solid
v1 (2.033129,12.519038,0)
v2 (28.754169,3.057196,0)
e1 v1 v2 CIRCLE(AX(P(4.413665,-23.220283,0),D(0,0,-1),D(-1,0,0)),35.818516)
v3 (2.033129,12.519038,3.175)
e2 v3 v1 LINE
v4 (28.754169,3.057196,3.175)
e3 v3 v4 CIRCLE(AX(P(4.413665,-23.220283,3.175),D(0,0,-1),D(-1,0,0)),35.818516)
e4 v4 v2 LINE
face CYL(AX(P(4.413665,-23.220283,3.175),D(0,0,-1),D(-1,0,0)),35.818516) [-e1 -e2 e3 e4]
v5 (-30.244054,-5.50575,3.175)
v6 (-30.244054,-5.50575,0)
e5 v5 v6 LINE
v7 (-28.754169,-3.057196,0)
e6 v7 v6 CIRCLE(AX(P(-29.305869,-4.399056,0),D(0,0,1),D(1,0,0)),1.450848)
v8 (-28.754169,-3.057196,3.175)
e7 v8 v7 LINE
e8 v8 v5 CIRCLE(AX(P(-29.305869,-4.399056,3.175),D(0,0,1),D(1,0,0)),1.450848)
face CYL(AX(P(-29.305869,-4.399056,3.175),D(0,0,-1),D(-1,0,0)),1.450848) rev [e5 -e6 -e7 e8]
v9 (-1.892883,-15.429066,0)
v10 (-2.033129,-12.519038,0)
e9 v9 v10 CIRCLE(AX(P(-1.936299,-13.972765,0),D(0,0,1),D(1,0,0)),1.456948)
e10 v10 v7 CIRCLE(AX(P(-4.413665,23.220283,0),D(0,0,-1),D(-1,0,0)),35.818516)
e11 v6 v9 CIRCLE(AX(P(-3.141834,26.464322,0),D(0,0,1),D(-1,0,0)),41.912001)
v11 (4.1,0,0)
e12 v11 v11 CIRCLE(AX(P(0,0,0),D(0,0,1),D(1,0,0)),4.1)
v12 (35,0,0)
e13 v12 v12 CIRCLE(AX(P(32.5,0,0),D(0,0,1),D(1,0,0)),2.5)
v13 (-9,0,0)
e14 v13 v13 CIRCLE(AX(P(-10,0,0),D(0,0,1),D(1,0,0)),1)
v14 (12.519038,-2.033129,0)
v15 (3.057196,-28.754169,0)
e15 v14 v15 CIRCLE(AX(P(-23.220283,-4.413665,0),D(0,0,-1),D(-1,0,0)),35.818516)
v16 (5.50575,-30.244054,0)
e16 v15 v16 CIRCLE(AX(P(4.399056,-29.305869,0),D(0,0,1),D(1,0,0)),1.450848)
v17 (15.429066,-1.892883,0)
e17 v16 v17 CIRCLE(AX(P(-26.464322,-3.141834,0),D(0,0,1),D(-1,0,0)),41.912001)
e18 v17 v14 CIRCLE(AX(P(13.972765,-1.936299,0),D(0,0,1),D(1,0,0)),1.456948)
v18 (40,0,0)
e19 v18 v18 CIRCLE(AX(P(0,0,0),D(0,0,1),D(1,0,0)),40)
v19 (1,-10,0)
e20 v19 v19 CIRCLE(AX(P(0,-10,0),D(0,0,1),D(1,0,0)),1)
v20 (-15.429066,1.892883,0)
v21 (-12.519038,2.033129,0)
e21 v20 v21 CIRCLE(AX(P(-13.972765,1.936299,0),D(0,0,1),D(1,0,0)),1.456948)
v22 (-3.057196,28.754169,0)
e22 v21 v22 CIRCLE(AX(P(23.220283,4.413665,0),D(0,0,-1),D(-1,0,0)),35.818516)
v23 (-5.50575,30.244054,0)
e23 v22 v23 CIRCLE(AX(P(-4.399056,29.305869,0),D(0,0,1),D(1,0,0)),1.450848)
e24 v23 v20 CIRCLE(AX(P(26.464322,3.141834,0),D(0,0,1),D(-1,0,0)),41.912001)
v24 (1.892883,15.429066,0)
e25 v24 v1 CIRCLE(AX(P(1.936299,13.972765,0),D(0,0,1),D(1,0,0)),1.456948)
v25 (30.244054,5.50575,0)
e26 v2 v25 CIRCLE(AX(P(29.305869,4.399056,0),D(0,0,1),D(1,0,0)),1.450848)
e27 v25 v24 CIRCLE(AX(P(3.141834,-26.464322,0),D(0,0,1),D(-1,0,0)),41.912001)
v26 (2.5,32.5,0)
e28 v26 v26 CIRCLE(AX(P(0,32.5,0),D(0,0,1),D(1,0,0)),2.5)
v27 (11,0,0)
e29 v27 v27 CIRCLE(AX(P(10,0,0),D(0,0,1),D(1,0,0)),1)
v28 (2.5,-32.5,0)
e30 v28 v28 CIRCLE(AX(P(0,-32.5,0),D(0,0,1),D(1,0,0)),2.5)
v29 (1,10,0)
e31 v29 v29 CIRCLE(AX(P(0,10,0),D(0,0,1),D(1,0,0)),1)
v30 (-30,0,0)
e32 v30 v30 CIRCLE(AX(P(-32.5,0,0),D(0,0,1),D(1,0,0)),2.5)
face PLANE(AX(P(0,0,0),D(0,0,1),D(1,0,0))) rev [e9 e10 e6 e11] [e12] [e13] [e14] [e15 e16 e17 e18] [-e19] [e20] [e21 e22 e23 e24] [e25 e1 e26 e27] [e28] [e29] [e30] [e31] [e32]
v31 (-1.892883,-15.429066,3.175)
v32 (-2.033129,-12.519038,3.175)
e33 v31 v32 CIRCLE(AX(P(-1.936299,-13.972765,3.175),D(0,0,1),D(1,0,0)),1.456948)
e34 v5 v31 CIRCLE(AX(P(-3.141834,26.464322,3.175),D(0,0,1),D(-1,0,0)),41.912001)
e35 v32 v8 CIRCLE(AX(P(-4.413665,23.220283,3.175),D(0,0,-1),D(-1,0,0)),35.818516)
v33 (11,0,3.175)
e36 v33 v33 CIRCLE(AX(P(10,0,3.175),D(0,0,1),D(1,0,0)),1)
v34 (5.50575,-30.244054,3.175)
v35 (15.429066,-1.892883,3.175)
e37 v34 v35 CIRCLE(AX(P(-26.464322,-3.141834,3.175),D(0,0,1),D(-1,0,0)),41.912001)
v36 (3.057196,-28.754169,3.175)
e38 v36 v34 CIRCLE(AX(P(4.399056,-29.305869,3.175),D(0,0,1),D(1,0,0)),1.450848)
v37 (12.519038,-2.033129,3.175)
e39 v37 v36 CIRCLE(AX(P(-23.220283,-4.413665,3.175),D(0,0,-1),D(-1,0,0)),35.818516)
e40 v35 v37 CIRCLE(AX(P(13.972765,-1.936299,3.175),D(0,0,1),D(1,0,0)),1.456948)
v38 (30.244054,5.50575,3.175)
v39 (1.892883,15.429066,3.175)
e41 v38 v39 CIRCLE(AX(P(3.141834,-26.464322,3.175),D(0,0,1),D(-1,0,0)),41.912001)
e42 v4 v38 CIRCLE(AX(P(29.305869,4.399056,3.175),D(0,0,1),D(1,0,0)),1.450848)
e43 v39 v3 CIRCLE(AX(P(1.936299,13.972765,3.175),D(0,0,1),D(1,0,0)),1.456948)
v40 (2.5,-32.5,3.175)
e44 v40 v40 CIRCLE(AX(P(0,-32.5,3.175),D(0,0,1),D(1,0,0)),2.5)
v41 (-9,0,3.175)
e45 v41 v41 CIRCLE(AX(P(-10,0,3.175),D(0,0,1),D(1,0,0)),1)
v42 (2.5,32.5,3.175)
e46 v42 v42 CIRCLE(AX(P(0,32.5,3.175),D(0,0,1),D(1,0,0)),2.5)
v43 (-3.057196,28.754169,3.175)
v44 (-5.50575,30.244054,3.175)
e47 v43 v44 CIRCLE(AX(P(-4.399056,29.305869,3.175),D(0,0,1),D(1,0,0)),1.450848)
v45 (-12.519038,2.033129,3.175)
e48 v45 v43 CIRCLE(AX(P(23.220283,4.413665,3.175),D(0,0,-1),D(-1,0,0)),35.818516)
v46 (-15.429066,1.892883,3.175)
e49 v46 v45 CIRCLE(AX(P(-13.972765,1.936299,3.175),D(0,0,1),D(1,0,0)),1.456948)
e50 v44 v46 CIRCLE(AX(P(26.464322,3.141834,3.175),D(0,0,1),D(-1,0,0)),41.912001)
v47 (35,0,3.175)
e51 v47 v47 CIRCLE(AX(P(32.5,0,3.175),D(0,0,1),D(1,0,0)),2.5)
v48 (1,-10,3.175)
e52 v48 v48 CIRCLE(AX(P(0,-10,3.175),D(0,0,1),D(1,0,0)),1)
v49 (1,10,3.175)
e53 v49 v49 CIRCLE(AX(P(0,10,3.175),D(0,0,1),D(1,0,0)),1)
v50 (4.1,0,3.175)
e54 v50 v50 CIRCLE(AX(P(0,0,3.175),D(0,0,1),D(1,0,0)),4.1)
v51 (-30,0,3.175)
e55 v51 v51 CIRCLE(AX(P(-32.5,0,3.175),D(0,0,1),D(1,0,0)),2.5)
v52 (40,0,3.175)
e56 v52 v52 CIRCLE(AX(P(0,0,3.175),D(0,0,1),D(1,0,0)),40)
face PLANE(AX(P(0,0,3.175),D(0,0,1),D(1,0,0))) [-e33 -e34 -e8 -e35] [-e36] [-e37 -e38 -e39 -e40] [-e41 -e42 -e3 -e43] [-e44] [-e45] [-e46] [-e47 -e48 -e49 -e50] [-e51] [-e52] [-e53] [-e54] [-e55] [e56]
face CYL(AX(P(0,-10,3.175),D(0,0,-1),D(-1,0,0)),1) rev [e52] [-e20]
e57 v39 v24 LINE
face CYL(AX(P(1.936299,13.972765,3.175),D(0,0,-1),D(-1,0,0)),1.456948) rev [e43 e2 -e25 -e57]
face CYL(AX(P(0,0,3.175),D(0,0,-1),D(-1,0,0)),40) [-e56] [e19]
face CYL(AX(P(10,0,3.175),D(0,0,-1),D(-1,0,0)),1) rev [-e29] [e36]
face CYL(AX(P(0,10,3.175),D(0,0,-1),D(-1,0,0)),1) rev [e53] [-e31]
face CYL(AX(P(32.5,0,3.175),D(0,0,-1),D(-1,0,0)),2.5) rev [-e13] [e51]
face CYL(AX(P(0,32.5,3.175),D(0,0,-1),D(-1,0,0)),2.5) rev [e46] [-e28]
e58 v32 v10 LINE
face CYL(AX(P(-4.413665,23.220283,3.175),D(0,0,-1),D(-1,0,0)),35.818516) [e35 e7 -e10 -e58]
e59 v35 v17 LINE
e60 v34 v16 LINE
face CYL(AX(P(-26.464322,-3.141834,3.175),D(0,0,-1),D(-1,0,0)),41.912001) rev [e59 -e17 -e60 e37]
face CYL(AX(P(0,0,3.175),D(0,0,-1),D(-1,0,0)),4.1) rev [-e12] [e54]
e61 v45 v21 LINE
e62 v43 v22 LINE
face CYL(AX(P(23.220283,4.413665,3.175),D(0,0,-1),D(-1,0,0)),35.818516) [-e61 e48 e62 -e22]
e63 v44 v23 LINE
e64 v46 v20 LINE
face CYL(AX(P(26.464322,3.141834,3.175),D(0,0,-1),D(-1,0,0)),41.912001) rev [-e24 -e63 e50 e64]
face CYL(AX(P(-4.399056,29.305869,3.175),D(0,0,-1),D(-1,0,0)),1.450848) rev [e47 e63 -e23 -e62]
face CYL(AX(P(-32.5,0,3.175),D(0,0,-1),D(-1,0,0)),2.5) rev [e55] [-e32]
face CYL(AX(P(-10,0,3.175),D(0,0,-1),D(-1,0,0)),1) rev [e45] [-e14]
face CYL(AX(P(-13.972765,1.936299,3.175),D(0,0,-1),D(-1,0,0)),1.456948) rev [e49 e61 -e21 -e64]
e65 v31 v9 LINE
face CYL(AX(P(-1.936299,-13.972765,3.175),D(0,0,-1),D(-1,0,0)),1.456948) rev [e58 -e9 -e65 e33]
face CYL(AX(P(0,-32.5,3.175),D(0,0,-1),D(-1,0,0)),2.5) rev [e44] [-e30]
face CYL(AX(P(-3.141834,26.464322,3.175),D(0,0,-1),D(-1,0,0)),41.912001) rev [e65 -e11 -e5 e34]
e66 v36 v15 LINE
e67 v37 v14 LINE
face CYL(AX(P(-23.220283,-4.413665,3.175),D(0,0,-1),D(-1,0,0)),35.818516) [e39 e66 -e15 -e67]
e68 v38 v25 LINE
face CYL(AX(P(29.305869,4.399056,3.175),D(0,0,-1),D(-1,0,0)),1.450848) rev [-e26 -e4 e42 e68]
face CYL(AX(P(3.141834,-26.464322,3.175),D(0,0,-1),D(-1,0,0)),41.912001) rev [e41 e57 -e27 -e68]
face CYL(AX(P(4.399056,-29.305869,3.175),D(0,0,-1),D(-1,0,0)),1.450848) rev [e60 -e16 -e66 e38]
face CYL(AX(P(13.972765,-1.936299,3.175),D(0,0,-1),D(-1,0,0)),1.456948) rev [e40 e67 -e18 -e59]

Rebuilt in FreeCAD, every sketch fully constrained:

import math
import FreeCAD as App
import Part
import Sketcher
from FreeCAD import Vector

doc = App.newDocument("Part")
body = doc.addObject("PartDesign::Body", "Body")

# Sketch on XY plane
sketch1 = body.newObject("Sketcher::SketchObject", "Sketch")
sketch1.AttachmentSupport = (doc.getObject("XY_Plane"), [""])
sketch1.MapMode = "FlatFace"
sketch1.addGeometry([
    Part.Circle(Vector(0, 0, 0), Vector(0, 0, 1), 40),  # 0
    Part.ArcOfCircle(Part.Circle(Vector(-1.9, -14, 0), Vector(0, 0, 1), 1.5), math.radians(-88), math.radians(94)),  # 1
    Part.ArcOfCircle(Part.Circle(Vector(-3.1, 26.5, 0), Vector(0, 0, 1), 41.9), math.radians(-130), math.radians(-88)),  # 2
    Part.ArcOfCircle(Part.Circle(Vector(-29.3, -4.4, 0), Vector(0, 0, 1), 1.5), math.radians(68), math.radians(230)),  # 3
    Part.ArcOfCircle(Part.Circle(Vector(-4.4, 23.2, 0), Vector(0, 0, 1), 35.8), math.radians(-133), math.radians(-86)),  # 4
    Part.Circle(Vector(0, -32.5, 0), Vector(0, 0, 1), 2.5),  # 5
    Part.Circle(Vector(0, -10, 0), Vector(0, 0, 1), 1),  # 6
    Part.ArcOfCircle(Part.Circle(Vector(14, -1.9, 0), Vector(0, 0, 1), 1.5), math.radians(2), math.radians(184)),  # 7
    Part.ArcOfCircle(Part.Circle(Vector(-26.5, -3.1, 0), Vector(0, 0, 1), 41.9), math.radians(-40), math.radians(2)),  # 8
    Part.ArcOfCircle(Part.Circle(Vector(4.4, -29.3, 0), Vector(0, 0, 1), 1.5), math.radians(158), math.radians(320)),  # 9
    Part.ArcOfCircle(Part.Circle(Vector(-23.2, -4.4, 0), Vector(0, 0, 1), 35.8), math.radians(-43), math.radians(4)),  # 10
    Part.Circle(Vector(-32.5, 0, 0), Vector(0, 0, 1), 2.5),  # 11
    Part.Circle(Vector(-10, 0, 0), Vector(0, 0, 1), 1),  # 12
    Part.ArcOfCircle(Part.Circle(Vector(-14, 1.9, 0), Vector(0, 0, 1), 1.5), math.radians(-178), math.radians(4)),  # 13
    Part.ArcOfCircle(Part.Circle(Vector(26.5, 3.1, 0), Vector(0, 0, 1), 41.9), math.radians(140), math.radians(182)),  # 14
    Part.ArcOfCircle(Part.Circle(Vector(-4.4, 29.3, 0), Vector(0, 0, 1), 1.5), math.radians(-22), math.radians(140)),  # 15
    Part.ArcOfCircle(Part.Circle(Vector(23.2, 4.4, 0), Vector(0, 0, 1), 35.8), math.radians(137), math.radians(184)),  # 16
    Part.Circle(Vector(0, 0, 0), Vector(0, 0, 1), 4.1),  # 17
    Part.Circle(Vector(10, 0, 0), Vector(0, 0, 1), 1),  # 18
    Part.Circle(Vector(0, 10, 0), Vector(0, 0, 1), 1),  # 19
    Part.ArcOfCircle(Part.Circle(Vector(1.9, 14, 0), Vector(0, 0, 1), 1.5), math.radians(92), math.radians(274)),  # 20
    Part.ArcOfCircle(Part.Circle(Vector(3.1, -26.5, 0), Vector(0, 0, 1), 41.9), math.radians(50), math.radians(92)),  # 21
    Part.ArcOfCircle(Part.Circle(Vector(29.3, 4.4, 0), Vector(0, 0, 1), 1.5), math.radians(-112), math.radians(50)),  # 22
    Part.ArcOfCircle(Part.Circle(Vector(4.4, -23.2, 0), Vector(0, 0, 1), 35.8), math.radians(47), math.radians(94)),  # 23
    Part.Circle(Vector(32.5, 0, 0), Vector(0, 0, 1), 2.5),  # 24
    Part.Circle(Vector(0, 32.5, 0), Vector(0, 0, 1), 2.5),  # 25
], False)
sketch1.addConstraint([
    Sketcher.Constraint("Tangent", 1, 1, 2, 2),
    Sketcher.Constraint("Tangent", 2, 1, 3, 2),
    Sketcher.Constraint("Coincident", 3, 1, 4, 1),
    Sketcher.Constraint("Tangent", 4, 2, 1, 2),
    Sketcher.Constraint("Tangent", 7, 1, 8, 2),
    Sketcher.Constraint("Tangent", 8, 1, 9, 2),
    Sketcher.Constraint("Coincident", 9, 1, 10, 1),
    Sketcher.Constraint("Tangent", 10, 2, 7, 2),
    Sketcher.Constraint("Tangent", 13, 1, 14, 2),
    Sketcher.Constraint("Tangent", 14, 1, 15, 2),
    Sketcher.Constraint("Coincident", 15, 1, 16, 1),
    Sketcher.Constraint("Tangent", 16, 2, 13, 2),
    Sketcher.Constraint("Tangent", 20, 1, 21, 2),
    Sketcher.Constraint("Tangent", 21, 1, 22, 2),
    Sketcher.Constraint("Coincident", 22, 1, 23, 1),
    Sketcher.Constraint("Tangent", 23, 2, 20, 2),
    Sketcher.Constraint("Coincident", 0, 3, -1, 1),
    Sketcher.Constraint("Coincident", 17, 3, -1, 1),
    Sketcher.Constraint("Equal", 1, 7),
    Sketcher.Constraint("Equal", 2, 8),
    Sketcher.Constraint("Equal", 3, 9),
    Sketcher.Constraint("Equal", 4, 10),
    Sketcher.Constraint("Equal", 5, 11),
    Sketcher.Constraint("Equal", 6, 12),
    Sketcher.Constraint("Equal", 7, 13),
    Sketcher.Constraint("Equal", 8, 14),
    Sketcher.Constraint("Equal", 9, 15),
    Sketcher.Constraint("Equal", 10, 16),
    Sketcher.Constraint("Equal", 12, 18),
    Sketcher.Constraint("Equal", 18, 19),
    Sketcher.Constraint("Equal", 13, 20),
    Sketcher.Constraint("Equal", 14, 21),
    Sketcher.Constraint("Equal", 15, 22),
    Sketcher.Constraint("Equal", 16, 23),
    Sketcher.Constraint("Equal", 11, 24),
    Sketcher.Constraint("Equal", 24, 25),
    Sketcher.Constraint("Symmetric", 7, 3, 13, 3, -1, 1),
    Sketcher.Constraint("Symmetric", 9, 3, 15, 3, -1, 1),
    Sketcher.Constraint("Symmetric", 12, 3, 18, 3, -1, 1),
    Sketcher.Constraint("Symmetric", 6, 3, 19, 3, -1, 1),
    Sketcher.Constraint("Symmetric", 1, 3, 20, 3, -1, 1),
    Sketcher.Constraint("Symmetric", 3, 3, 22, 3, -1, 1),
    Sketcher.Constraint("Symmetric", 11, 3, 24, 3, -1, 1),
    Sketcher.Constraint("Symmetric", 5, 3, 25, 3, -1, 1),
    Sketcher.Constraint("PointOnObject", 5, 3, -2),
    Sketcher.Constraint("PointOnObject", 6, 3, -2),
    Sketcher.Constraint("PointOnObject", 11, 3, -1),
    Sketcher.Constraint("PointOnObject", 12, 3, -1),
    Sketcher.Constraint("Diameter", 0, 80.0),
    Sketcher.Constraint("Diameter", 5, 5.0),
    Sketcher.Constraint("Diameter", 6, 2.0),
    Sketcher.Constraint("Diameter", 17, 8.2),
    Sketcher.Constraint("DistanceY", 6, 3, -1, 1, 10.0),
    Sketcher.Constraint("DistanceX", 12, 3, -1, 1, 10.0),
    Sketcher.Constraint("Radius", 2, 41.912001),
    Sketcher.Constraint("DistanceY", 5, 3, -1, 1, 32.5),
    Sketcher.Constraint("DistanceX", 11, 3, -1, 1, 32.5),
    Sketcher.Constraint("Radius", 3, 1.450848),
    Sketcher.Constraint("Radius", 1, 1.456948),
    Sketcher.Constraint("Radius", 4, 35.818516),
    Sketcher.Constraint("DistanceX", 1, 3, -1, 1, 1.936299),
    Sketcher.Constraint("DistanceY", 7, 3, -1, 1, 1.936299),
    Sketcher.Constraint("DistanceX", 2, 3, 7, 3, 17.114599),
    Sketcher.Constraint("DistanceY", 1, 3, 10, 3, 9.5591),
    Sketcher.Constraint("DistanceY", 1, 3, 14, 3, 17.114599),
    Sketcher.Constraint("DistanceX", 3, 3, 3, 1, 0.5517),
    Sketcher.Constraint("DistanceY", 9, 3, 9, 1, 0.5517),
    Sketcher.Constraint("DistanceY", 15, 1, 15, 3, 0.5517),
    Sketcher.Constraint("DistanceX", 22, 1, 22, 3, 0.5517),
    Sketcher.Constraint("DistanceX", 3, 3, -1, 1, 29.305869),
    Sketcher.Constraint("DistanceY", 9, 3, -1, 1, 29.305869),
    Sketcher.Constraint("DistanceY", 2, 1, -1, 1, 5.50575),
])
pad1 = body.newObject("PartDesign::Pad", "Pad")
pad1.Profile = sketch1
pad1.Length = 3.175

doc.recompute()
